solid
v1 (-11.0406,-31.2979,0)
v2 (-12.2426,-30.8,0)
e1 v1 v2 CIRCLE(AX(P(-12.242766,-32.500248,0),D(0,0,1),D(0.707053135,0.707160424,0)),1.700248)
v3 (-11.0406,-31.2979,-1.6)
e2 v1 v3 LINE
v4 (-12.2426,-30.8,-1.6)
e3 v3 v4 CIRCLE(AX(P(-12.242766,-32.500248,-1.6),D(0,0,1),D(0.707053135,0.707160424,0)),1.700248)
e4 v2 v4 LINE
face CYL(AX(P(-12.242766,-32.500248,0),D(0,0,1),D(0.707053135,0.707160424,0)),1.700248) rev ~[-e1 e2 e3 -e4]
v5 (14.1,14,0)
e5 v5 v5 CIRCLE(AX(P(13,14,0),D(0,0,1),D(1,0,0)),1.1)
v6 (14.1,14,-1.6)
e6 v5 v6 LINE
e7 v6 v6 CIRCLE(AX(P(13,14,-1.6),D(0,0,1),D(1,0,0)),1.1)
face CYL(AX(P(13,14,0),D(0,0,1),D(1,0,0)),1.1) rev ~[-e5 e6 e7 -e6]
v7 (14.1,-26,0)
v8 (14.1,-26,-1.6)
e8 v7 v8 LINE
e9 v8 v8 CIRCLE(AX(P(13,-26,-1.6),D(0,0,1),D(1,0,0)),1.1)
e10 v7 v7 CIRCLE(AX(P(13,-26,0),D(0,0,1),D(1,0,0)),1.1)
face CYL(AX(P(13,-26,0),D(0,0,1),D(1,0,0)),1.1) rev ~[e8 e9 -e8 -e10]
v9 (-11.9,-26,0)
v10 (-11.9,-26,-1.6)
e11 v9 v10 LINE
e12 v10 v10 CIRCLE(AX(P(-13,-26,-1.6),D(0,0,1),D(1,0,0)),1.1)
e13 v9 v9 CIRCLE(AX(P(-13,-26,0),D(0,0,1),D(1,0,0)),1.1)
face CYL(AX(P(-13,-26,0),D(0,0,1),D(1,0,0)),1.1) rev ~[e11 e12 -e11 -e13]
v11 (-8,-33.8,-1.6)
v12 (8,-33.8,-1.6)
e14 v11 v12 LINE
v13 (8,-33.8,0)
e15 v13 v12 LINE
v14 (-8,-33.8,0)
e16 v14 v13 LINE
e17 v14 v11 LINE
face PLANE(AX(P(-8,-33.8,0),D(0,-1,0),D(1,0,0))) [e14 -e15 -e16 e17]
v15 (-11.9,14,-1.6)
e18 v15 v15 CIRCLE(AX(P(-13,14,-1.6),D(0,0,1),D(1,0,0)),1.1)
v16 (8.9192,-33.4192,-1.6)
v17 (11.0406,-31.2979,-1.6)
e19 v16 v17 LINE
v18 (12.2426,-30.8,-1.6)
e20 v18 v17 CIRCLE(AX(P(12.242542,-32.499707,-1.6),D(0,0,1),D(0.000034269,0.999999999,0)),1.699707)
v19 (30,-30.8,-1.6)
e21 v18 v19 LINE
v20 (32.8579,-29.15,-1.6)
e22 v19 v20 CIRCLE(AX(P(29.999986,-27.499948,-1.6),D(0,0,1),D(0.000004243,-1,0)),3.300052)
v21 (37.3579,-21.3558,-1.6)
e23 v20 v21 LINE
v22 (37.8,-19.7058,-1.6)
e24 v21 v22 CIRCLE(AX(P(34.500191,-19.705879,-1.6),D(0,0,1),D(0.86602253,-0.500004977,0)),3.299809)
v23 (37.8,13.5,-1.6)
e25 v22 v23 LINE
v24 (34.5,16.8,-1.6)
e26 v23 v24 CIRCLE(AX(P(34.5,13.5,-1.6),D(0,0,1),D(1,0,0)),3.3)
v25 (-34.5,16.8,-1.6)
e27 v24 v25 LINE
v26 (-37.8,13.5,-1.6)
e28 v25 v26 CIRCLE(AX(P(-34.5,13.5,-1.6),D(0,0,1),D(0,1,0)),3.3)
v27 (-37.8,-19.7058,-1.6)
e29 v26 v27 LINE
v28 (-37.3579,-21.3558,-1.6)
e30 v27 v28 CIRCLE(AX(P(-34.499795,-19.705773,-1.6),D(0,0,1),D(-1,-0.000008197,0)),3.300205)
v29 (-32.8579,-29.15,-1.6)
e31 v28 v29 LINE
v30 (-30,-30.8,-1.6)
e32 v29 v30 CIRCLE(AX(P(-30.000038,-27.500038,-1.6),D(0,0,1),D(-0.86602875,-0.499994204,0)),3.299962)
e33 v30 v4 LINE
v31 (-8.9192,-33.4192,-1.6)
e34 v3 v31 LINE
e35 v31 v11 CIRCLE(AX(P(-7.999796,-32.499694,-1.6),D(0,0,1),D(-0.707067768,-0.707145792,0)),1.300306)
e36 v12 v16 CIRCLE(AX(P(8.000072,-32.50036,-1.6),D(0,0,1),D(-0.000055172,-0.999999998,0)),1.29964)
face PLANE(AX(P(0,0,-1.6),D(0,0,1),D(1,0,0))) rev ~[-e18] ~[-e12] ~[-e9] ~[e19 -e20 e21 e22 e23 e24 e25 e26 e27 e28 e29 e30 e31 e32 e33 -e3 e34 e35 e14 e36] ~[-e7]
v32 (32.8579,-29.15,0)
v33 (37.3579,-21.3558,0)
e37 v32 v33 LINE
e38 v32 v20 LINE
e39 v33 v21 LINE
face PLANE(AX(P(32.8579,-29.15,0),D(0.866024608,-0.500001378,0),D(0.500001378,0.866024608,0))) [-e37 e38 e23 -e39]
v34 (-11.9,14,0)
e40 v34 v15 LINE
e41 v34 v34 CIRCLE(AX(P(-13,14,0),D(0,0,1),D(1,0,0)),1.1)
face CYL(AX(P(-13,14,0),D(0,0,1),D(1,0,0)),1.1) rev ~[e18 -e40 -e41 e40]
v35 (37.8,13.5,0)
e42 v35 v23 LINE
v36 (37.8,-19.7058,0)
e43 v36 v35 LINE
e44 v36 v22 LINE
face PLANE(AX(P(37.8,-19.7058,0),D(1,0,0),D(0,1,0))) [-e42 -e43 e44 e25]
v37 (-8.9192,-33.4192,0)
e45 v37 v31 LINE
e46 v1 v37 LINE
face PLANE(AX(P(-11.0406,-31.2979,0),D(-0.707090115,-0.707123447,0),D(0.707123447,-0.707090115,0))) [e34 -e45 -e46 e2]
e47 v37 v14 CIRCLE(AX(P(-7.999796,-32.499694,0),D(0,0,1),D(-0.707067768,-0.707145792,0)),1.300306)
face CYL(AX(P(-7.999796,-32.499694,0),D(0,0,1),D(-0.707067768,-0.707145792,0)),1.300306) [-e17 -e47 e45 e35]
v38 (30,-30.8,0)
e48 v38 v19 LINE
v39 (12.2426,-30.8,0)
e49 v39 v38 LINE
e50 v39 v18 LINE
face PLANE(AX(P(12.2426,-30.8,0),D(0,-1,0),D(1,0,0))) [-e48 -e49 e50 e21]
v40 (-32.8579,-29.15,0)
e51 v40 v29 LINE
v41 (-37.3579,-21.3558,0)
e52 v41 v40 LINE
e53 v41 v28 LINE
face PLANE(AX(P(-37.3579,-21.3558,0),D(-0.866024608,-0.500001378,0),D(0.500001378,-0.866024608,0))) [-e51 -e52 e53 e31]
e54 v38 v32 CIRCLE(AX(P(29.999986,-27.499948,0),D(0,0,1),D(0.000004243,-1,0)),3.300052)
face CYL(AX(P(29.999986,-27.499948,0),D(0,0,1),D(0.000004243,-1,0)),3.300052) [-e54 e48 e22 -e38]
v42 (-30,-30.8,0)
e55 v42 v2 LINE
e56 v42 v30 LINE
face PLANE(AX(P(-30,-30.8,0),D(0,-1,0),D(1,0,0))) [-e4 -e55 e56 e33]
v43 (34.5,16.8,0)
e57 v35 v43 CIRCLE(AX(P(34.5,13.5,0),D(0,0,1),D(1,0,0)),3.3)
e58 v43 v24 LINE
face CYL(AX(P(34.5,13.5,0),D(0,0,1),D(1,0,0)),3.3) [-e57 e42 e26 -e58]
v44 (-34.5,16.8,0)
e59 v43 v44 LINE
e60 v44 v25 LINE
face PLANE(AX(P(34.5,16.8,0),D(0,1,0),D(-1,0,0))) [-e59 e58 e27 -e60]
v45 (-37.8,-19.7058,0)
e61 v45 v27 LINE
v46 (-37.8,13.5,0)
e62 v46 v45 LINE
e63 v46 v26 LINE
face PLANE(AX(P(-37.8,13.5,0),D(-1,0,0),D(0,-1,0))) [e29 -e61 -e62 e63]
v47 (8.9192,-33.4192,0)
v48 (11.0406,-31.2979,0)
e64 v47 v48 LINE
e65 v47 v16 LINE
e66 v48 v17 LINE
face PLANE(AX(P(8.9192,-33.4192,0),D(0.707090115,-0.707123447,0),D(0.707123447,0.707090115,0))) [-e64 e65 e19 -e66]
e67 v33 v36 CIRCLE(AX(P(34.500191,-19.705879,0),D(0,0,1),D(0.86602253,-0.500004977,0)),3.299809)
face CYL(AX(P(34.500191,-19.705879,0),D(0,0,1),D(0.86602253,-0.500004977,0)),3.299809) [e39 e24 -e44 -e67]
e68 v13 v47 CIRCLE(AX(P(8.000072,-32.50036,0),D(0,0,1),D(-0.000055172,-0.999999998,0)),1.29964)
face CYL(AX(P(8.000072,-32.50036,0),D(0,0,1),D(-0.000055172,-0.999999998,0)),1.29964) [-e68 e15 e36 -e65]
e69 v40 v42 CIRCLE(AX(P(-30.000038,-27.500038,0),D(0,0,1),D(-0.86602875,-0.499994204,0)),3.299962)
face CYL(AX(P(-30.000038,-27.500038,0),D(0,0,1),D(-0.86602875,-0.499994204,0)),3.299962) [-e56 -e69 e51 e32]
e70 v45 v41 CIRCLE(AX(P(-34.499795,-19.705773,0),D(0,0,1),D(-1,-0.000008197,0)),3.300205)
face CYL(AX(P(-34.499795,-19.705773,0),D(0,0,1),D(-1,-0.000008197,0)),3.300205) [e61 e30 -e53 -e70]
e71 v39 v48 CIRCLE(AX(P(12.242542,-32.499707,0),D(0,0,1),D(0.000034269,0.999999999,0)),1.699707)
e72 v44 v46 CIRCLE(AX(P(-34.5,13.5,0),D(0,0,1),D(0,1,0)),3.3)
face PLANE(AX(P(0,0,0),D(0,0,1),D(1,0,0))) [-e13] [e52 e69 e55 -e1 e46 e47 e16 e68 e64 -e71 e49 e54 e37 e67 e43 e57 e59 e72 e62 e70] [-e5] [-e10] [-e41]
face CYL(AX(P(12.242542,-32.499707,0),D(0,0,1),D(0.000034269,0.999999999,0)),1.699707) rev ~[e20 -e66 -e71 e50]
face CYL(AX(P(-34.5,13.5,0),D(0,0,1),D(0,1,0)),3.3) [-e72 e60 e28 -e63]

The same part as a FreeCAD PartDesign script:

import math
import FreeCAD as App
import Part
import Sketcher
from FreeCAD import Vector
Q = App.Units.Quantity

doc = App.newDocument("Part")
body = doc.addObject("PartDesign::Body", "Body")

sketch1 = body.newObject("Sketcher::SketchObject", "Sketch")
sketch1.AttachmentSupport = (doc.getObject("XY_Plane"), [""])
sketch1.MapMode = "FlatFace"
sketch1.addGeometry([
    Part.ArcOfCircle(Part.Circle(Vector(30, -27.5, 0), Vector(0, 0, 1), 3.3), math.radians(-90), math.radians(-30)),
    Part.LineSegment(Vector(32.9, -29.1, 0), Vector(37.4, -21.4, 0)),
    Part.ArcOfCircle(Part.Circle(Vector(34.5, -19.7, 0), Vector(0, 0, 1), 3.3), math.radians(-30), math.radians(0)),
    Part.LineSegment(Vector(37.8, -19.7, 0), Vector(37.8, 13.5, 0)),
    Part.ArcOfCircle(Part.Circle(Vector(34.5, 13.5, 0), Vector(0, 0, 1), 3.3), math.radians(0), math.radians(90)),
    Part.LineSegment(Vector(34.5, 16.8, 0), Vector(-34.5, 16.8, 0)),
    Part.ArcOfCircle(Part.Circle(Vector(-34.5, 13.5, 0), Vector(0, 0, 1), 3.3), math.radians(90), math.radians(180)),
    Part.LineSegment(Vector(-37.8, 13.5, 0), Vector(-37.8, -19.7, 0)),
    Part.ArcOfCircle(Part.Circle(Vector(-34.5, -19.7, 0), Vector(0, 0, 1), 3.3), math.radians(180), math.radians(210)),
    Part.LineSegment(Vector(-37.4, -21.4, 0), Vector(-32.9, -29.1, 0)),
    Part.ArcOfCircle(Part.Circle(Vector(-30, -27.5, 0), Vector(0, 0, 1), 3.3), math.radians(-150), math.radians(-90)),
    Part.LineSegment(Vector(-30, -30.8, 0), Vector(-12.2, -30.8, 0)),
    Part.ArcOfCircle(Part.Circle(Vector(-12.2, -32.5, 0), Vector(0, 0, 1), 1.7), math.radians(45), math.radians(90)),
    Part.LineSegment(Vector(-11, -31.3, 0), Vector(-8.9, -33.4, 0)),
    Part.ArcOfCircle(Part.Circle(Vector(-8, -32.5, 0), Vector(0, 0, 1), 1.3), math.radians(-135), math.radians(-90)),
    Part.LineSegment(Vector(-8, -33.8, 0), Vector(8, -33.8, 0)),
    Part.ArcOfCircle(Part.Circle(Vector(8, -32.5, 0), Vector(0, 0, 1), 1.3), math.radians(-90), math.radians(-45)),
    Part.LineSegment(Vector(8.9, -33.4, 0), Vector(11, -31.3, 0)),
    Part.ArcOfCircle(Part.Circle(Vector(12.2, -32.5, 0), Vector(0, 0, 1), 1.7), math.radians(90), math.radians(135)),
    Part.LineSegment(Vector(12.2, -30.8, 0), Vector(30, -30.8, 0)),
    Part.Circle(Vector(-13, -26, 0), Vector(0, 0, 1), 1.1),
    Part.Circle(Vector(13, -26, 0), Vector(0, 0, 1), 1.1),
    Part.Circle(Vector(-13, 14, 0), Vector(0, 0, 1), 1.1),
    Part.Circle(Vector(13, 14, 0), Vector(0, 0, 1), 1.1),
], False)
sketch1.addConstraint([
    Sketcher.Constraint("Tangent", 0, 2, 1, 1),
    Sketcher.Constraint("Tangent", 1, 2, 2, 1),
    Sketcher.Constraint("Tangent", 2, 2, 3, 1),
    Sketcher.Constraint("Tangent", 3, 2, 4, 1),
    Sketcher.Constraint("Tangent", 4, 2, 5, 1),
    Sketcher.Constraint("Tangent", 5, 2, 6, 1),
    Sketcher.Constraint("Tangent", 6, 2, 7, 1),
    Sketcher.Constraint("Tangent", 7, 2, 8, 1),
    Sketcher.Constraint("Tangent", 8, 2, 9, 1),
    Sketcher.Constraint("Tangent", 9, 2, 10, 1),
    Sketcher.Constraint("Tangent", 10, 2, 11, 1),
    Sketcher.Constraint("Tangent", 11, 2, 12, 2),
    Sketcher.Constraint("Tangent", 12, 1, 13, 1),
    Sketcher.Constraint("Tangent", 13, 2, 14, 1),
    Sketcher.Constraint("Tangent", 14, 2, 15, 1),
    Sketcher.Constraint("Tangent", 15, 2, 16, 1),
    Sketcher.Constraint("Tangent", 16, 2, 17, 1),
    Sketcher.Constraint("Tangent", 17, 2, 18, 2),
    Sketcher.Constraint("Tangent", 18, 1, 19, 1),
    Sketcher.Constraint("Tangent", 19, 2, 0, 1),
    Sketcher.Constraint("Vertical", 3),
    Sketcher.Constraint("Horizontal", 5),
    Sketcher.Constraint("Vertical", 7),
    Sketcher.Constraint("Horizontal", 11),
    Sketcher.Constraint("Horizontal", 15),
    Sketcher.Constraint("Horizontal", 19),
    Sketcher.Constraint("Equal", 0, 2),
    Sketcher.Constraint("Equal", 2, 4),
    Sketcher.Constraint("Equal", 4, 6),
    Sketcher.Constraint("Equal", 6, 8),
    Sketcher.Constraint("Equal", 8, 10),
    Sketcher.Constraint("Equal", 14, 16),
    Sketcher.Constraint("Equal", 12, 18),
    Sketcher.Constraint("Equal", 20, 21),
    Sketcher.Constraint("Equal", 21, 22),
    Sketcher.Constraint("Equal", 22, 23),
    Sketcher.Constraint("Symmetric", 2, 3, 8, 3, -2),
    Sketcher.Constraint("Symmetric", 0, 3, 10, 3, -2),
    Sketcher.Constraint("Symmetric", 20, 3, 21, 3, -2),
    Sketcher.Constraint("Symmetric", 22, 3, 23, 3, -2),
    Sketcher.Constraint("Symmetric", 13, 2, 16, 2, -2),
    Sketcher.Constraint("Perpendicular", 13, 17),
    Sketcher.Constraint("Horizontal", 12, 3, 14, 3),
    Sketcher.Constraint("Vertical", 20, 3, 22, 3),
    Sketcher.Constraint("Diameter", 20, 2.2),
    Sketcher.Constraint("Radius", 0, 3.3),
    Sketcher.Constraint("Radius", 12, 1.7),
    Sketcher.Constraint("Radius", 14, 1.3),
    Sketcher.Constraint("DistanceX", 5, 2, 5, 1, 69.0),
    Sketcher.Constraint("DistanceX", 15, 1, 15, 2, 16.0),
    Sketcher.Constraint("Angle", 1, Q("60 deg")),
    Sketcher.Constraint("Distance", 1, 9.0),
    Sketcher.Constraint("DistanceX", 20, 3, -1, 1, 13.0),
    Sketcher.Constraint("DistanceY", 20, 3, -1, 1, 26.0),
    Sketcher.Constraint("DistanceY", -1, 1, 22, 3, 14.0),
    Sketcher.Constraint("DistanceY", 0, 3, 4, 3, 41.0),
    Sketcher.Constraint("DistanceY", 0, 3, -1, 1, 27.5),
])
pad1 = body.newObject("PartDesign::Pad", "Pad")
pad1.Profile = sketch1
pad1.Length = 1.6
pad1.Reversed = True

doc.recompute()
